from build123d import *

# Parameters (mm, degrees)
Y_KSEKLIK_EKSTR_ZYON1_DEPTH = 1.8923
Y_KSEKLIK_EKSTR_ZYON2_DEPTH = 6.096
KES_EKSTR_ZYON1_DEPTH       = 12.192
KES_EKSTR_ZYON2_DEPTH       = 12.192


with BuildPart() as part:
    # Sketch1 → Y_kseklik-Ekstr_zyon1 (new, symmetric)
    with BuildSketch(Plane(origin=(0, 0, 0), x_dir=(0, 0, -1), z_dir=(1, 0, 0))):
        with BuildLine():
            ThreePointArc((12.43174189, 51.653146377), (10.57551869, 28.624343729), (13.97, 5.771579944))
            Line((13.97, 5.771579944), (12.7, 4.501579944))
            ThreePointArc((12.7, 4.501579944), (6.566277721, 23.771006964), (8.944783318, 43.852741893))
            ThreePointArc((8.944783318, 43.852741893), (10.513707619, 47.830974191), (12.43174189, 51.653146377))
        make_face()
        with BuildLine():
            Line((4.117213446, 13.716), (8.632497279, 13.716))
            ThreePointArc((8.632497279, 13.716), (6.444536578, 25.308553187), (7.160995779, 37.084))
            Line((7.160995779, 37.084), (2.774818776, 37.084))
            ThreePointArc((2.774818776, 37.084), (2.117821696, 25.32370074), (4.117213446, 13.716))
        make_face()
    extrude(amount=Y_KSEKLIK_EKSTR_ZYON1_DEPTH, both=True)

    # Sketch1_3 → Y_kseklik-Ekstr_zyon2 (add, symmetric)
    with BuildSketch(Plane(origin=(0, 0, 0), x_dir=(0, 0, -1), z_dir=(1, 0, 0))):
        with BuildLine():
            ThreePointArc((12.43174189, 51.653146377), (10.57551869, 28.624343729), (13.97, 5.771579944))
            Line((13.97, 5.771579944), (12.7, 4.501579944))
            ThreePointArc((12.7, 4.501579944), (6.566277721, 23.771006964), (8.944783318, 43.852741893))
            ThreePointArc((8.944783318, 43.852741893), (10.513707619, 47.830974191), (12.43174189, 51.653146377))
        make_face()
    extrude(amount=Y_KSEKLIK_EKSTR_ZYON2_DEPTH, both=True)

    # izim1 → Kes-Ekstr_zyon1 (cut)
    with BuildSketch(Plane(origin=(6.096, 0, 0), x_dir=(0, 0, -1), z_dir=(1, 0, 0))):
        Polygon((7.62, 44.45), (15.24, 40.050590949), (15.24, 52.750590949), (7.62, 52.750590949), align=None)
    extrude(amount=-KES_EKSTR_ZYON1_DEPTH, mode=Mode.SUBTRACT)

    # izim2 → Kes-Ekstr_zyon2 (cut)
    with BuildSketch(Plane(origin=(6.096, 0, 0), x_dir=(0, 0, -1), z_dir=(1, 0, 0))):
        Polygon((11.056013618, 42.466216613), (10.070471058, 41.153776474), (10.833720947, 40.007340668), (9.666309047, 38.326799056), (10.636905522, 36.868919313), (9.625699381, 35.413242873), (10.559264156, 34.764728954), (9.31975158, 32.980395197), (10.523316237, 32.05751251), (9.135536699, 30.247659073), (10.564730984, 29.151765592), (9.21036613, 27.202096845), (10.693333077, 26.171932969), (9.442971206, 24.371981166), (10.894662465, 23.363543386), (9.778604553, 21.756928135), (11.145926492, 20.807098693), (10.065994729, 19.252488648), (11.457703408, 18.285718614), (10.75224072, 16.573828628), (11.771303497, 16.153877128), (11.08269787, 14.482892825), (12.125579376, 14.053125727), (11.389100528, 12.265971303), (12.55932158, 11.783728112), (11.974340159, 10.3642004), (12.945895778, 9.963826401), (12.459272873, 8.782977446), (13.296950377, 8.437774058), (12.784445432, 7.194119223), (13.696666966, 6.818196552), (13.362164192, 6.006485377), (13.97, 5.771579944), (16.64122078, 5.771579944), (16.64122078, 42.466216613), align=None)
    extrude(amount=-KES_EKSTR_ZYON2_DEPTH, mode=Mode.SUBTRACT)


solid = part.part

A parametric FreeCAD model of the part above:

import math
import FreeCAD as App
import Part
import Sketcher
from FreeCAD import Vector
Q = App.Units.Quantity


def add_polygon(sketch, points):
    """Adds a closed chain of lines whose ends are joined by coincident constraints."""
    first, n = sketch.GeometryCount, len(points)
    for a, b in zip(points, points[1:] + points[:1]):
        sketch.addGeometry(Part.LineSegment(App.Vector(*a, 0), App.Vector(*b, 0)), False)
    for i in range(n):
        sketch.addConstraint(Sketcher.Constraint("Coincident", first + i, 2, first + (i + 1) % n, 1))

doc = App.newDocument("Part")
body = doc.addObject("PartDesign::Body", "Body")

# Sketch on YZ plane
sketch1 = body.newObject("Sketcher::SketchObject", "Sketch")
sketch1.AttachmentSupport = (doc.getObject("YZ_Plane"), [""])
sketch1.MapMode = "FlatFace"
sketch1.addGeometry(Part.ArcOfCircle(Part.Circle(Vector(32, -112.1, 0), Vector(0, 0, 1), 101.6), math.radians(79), math.radians(105)), False)
sketch1.addGeometry(Part.ArcOfCircle(Part.Circle(Vector(28.3, -54.2, 0), Vector(0, 0, 1), 47.8), math.radians(60.79), math.radians(71.04)), False)
sketch1.addGeometry(Part.ArcOfCircle(Part.Circle(Vector(28.3, -54.2, 0), Vector(0, 0, 1), 47.8), math.radians(71.04), math.radians(79.43)), False)
sketch1.addGeometry(Part.LineSegment(Vector(37.1, -7.2, 0), Vector(37.1, -2.8, 0)), False)
sketch1.addGeometry(Part.ArcOfCircle(Part.Circle(Vector(28.3, -54.2, 0), Vector(0, 0, 1), 52.1), math.radians(80), math.radians(106)), False)
sketch1.addGeometry(Part.LineSegment(Vector(13.7, -4.1, 0), Vector(13.7, -8.6, 0)), False)
sketch1.addGeometry(Part.ArcOfCircle(Part.Circle(Vector(28.3, -54.2, 0), Vector(0, 0, 1), 47.8), math.radians(107.77), math.radians(119.86)), False)
sketch1.addGeometry(Part.LineSegment(Vector(4.5, -12.7, 0), Vector(5.8, -14, 0)), False)
sketch1.addConstraint(Sketcher.Constraint("Coincident", 0, 1, 1, 1))
sketch1.addConstraint(Sketcher.Constraint("Tangent", 1, 2, 2, 1))
sketch1.addConstraint(Sketcher.Constraint("Coincident", 2, 2, 3, 1))
sketch1.addConstraint(Sketcher.Constraint("Coincident", 3, 2, 4, 1))
sketch1.addConstraint(Sketcher.Constraint("Coincident", 4, 2, 5, 1))
sketch1.addConstraint(Sketcher.Constraint("Coincident", 5, 2, 6, 1))
sketch1.addConstraint(Sketcher.Constraint("Coincident", 6, 2, 7, 1))
sketch1.addConstraint(Sketcher.Constraint("Coincident", 7, 2, 0, 2))
sketch1.addConstraint(Sketcher.Constraint("Vertical", 3))
sketch1.addConstraint(Sketcher.Constraint("Vertical", 5))
sketch1.addConstraint(Sketcher.Constraint("Coincident", 4, 3, 1, 3))
sketch1.addConstraint(Sketcher.Constraint("Coincident", 6, 3, 1, 3))
sketch1.addConstraint(Sketcher.Constraint("Equal", 1, 2))
sketch1.addConstraint(Sketcher.Constraint("Equal", 2, 6))
sketch1.addConstraint(Sketcher.Constraint("Radius", 0, Q("4 in")))
sketch1.addConstraint(Sketcher.Constraint("Angle", 7, Q("-45 deg")))
sketch1.addConstraint(Sketcher.Constraint("DistanceY", 6, 2, -1, 1, Q("0.5 in")))
sketch1.addConstraint(Sketcher.Constraint("DistanceX", -1, 1, 2, 2, Q("1.46 in")))
sketch1.addConstraint(Sketcher.Constraint("DistanceX", -1, 1, 4, 2, Q("0.54 in")))
sketch1.addConstraint(Sketcher.Constraint("DistanceY", 7, 2, -1, 1, Q("0.55 in")))
sketch1.addConstraint(Sketcher.Constraint("Radius", 1, Q("47.823437 mm")))
sketch1.addConstraint(Sketcher.Constraint("Radius", 4, Q("52.141438 mm")))
sketch1.addConstraint(Sketcher.Constraint("DistanceX", 0, 3, 0, 1, Q("19.624401 mm")))
sketch1.addConstraint(Sketcher.Constraint("DistanceY", 5, 2, 2, 2, Q("1.471501 mm")))
sketch1.addConstraint(Sketcher.Constraint("DistanceY", 0, 1, -1, 1, Q("12.431742 mm")))
sketch1.addConstraint(Sketcher.Constraint("DistanceX", -1, 1, 1, 2, Q("43.852742 mm")))
pad1 = body.newObject("PartDesign::Pad", "Pad")
pad1.Profile = sketch1
pad1.Length = Q("0.149 in")
pad1.Midplane = True

# Sketch on YZ plane
sketch2 = body.newObject("Sketcher::SketchObject", "Sketch001")
sketch2.AttachmentSupport = (doc.getObject("YZ_Plane"), [""])
sketch2.MapMode = "FlatFace"
sketch2.addGeometry(Part.ArcOfCircle(Part.Circle(Vector(32, -112.1, 0), Vector(0, 0, 1), 101.6), math.radians(79), math.radians(105)), False)
sketch2.addGeometry(Part.ArcOfCircle(Part.Circle(Vector(28.3, -54.2, 0), Vector(0, 0, 1), 47.8), math.radians(60.79), math.radians(71.04)), False)
sketch2.addGeometry(Part.ArcOfCircle(Part.Circle(Vector(28.3, -54.2, 0), Vector(0, 0, 1), 47.8), math.radians(71), math.radians(120)), False)
sketch2.addGeometry(Part.LineSegment(Vector(4.5, -12.7, 0), Vector(5.8, -14, 0)), False)
sketch2.addConstraint(Sketcher.Constraint("Coincident", 0, 1, 1, 1))
sketch2.addConstraint(Sketcher.Constraint("Tangent", 1, 2, 2, 1))
sketch2.addConstraint(Sketcher.Constraint("Coincident", 2, 2, 3, 1))
sketch2.addConstraint(Sketcher.Constraint("Coincident", 3, 2, 0, 2))
sketch2.addConstraint(Sketcher.Constraint("Equal", 1, 2))
sketch2.addConstraint(Sketcher.Constraint("Radius", 0, Q("4 in")))
sketch2.addConstraint(Sketcher.Constraint("Angle", 3, Q("-45 deg")))
sketch2.addConstraint(Sketcher.Constraint("DistanceY", 2, 2, -1, 1, Q("0.5 in")))
sketch2.addConstraint(Sketcher.Constraint("DistanceY", 3, 2, -1, 1, Q("0.55 in")))
sketch2.addConstraint(Sketcher.Constraint("DistanceX", 2, 2, 1, 3, Q("0.9375 in")))
sketch2.addConstraint(Sketcher.Constraint("Radius", 1, Q("47.823437 mm")))
sketch2.addConstraint(Sketcher.Constraint("DistanceX", 0, 3, 0, 1, Q("19.624401 mm")))
sketch2.addConstraint(Sketcher.Constraint("DistanceX", -1, 1, 1, 3, Q("28.31408 mm")))
sketch2.addConstraint(Sketcher.Constraint("DistanceX", -1, 1, 1, 2, Q("43.852742 mm")))
pad2 = body.newObject("PartDesign::Pad", "Pad001")
pad2.Profile = sketch2
pad2.Length = Q("0.48 in")
pad2.Midplane = True

# Sketch on YZ plane
sketch3 = body.newObject("Sketcher::SketchObject", "Sketch002")
sketch3.AttachmentSupport = (doc.getObject("YZ_Plane"), [""])
sketch3.MapMode = "FlatFace"
sketch3.AttachmentOffset = App.Placement(Vector(0, 0, 0.24 * 25.4), App.Rotation())
add_polygon(sketch3, [(44, -8), (40, -15), (53, -15), (53, -8)])  # lines 0-3
sketch3.addConstraint(Sketcher.Constraint("Horizontal", 1))
sketch3.addConstraint(Sketcher.Constraint("Vertical", 2))
sketch3.addConstraint(Sketcher.Constraint("Horizontal", 3))
sketch3.addConstraint(Sketcher.Constraint("DistanceX", 1, 1, 1, 2, Q("0.5 in")))
sketch3.addConstraint(Sketcher.Constraint("DistanceY", 2, 1, 2, 2, Q("0.3 in")))
sketch3.addConstraint(Sketcher.Constraint("Angle", 0, Q("-120 deg")))
sketch3.addConstraint(Sketcher.Constraint("DistanceY", 0, 2, -1, 1, Q("0.6 in")))
sketch3.addConstraint(Sketcher.Constraint("DistanceX", -1, 1, 3, 2, Q("1.75 in")))
pocket1 = body.newObject("PartDesign::Pocket", "Pocket")
pocket1.Profile = sketch3
pocket1.Length = Q("0.48 in")

# Sketch on YZ plane
sketch4 = body.newObject("Sketcher::SketchObject", "Sketch003")
sketch4.AttachmentSupport = (doc.getObject("YZ_Plane"), [""])
sketch4.MapMode = "FlatFace"
sketch4.AttachmentOffset = App.Placement(Vector(0, 0, 0.24 * 25.4), App.Rotation())
add_polygon(sketch4, [(42.5, -11.1), (41.2, -10.1), (40, -10.8), (38.3, -9.7), (36.9, -10.6), (35.4, -9.6), (34.8, -10.6), (33, -9.3), (32.1, -10.5), (30.2, -9.1), (29.2, -10.6), (27.2, -9.2), (26.2, -10.7), (24.4, -9.4), (23.4, -10.9), (21.8, -9.8), (20.8, -11.1), (19.3, -10.1), (18.3, -11.5), (16.6, -10.8), (16.2, -11.8), (14.5, -11.1), (14.1, -12.1), (12.3, -11.4), (11.8, -12.6), (10.4, -12), (10, -12.9), (8.8, -12.5), (8.4, -13.3), (7.2, -12.8), (6.8, -13.7), (6, -13.4), (5.8, -14), (5.8, -16.6), (42.5, -16.6)])  # lines 0-34
sketch4.addConstraint(Sketcher.Constraint("Vertical", 32))
sketch4.addConstraint(Sketcher.Constraint("Horizontal", 33))
sketch4.addConstraint(Sketcher.Constraint("Vertical", 34))
sketch4.addConstraint(Sketcher.Constraint("Parallel", 1, 3))
sketch4.addConstraint(Sketcher.Constraint("Parallel", 2, 4))
sketch4.addConstraint(Sketcher.Constraint("Perpendicular", 4, 5))
sketch4.addConstraint(Sketcher.Constraint("Perpendicular", 5, 6))
sketch4.addConstraint(Sketcher.Constraint("Perpendicular", 7, 8))
sketch4.addConstraint(Sketcher.Constraint("Perpendicular", 8, 9))
sketch4.addConstraint(Sketcher.Constraint("Parallel", 6, 10))
sketch4.addConstraint(Sketcher.Constraint("Perpendicular", 10, 11))
sketch4.addConstraint(Sketcher.Constraint("Perpendicular", 11, 12))
sketch4.addConstraint(Sketcher.Constraint("Perpendicular", 12, 13))
sketch4.addConstraint(Sketcher.Constraint("Perpendicular", 13, 14))
sketch4.addConstraint(Sketcher.Constraint("Perpendicular", 14, 15))
sketch4.addConstraint(Sketcher.Constraint("Perpendicular", 15, 16))
sketch4.addConstraint(Sketcher.Constraint("Perpendicular", 16, 17))
sketch4.addConstraint(Sketcher.Constraint("Perpendicular", 18, 19))
sketch4.addConstraint(Sketcher.Constraint("Perpendicular", 19, 20))
sketch4.addConstraint(Sketcher.Constraint("Perpendicular", 20, 21))
sketch4.addConstraint(Sketcher.Constraint("Perpendicular", 21, 22))
sketch4.addConstraint(Sketcher.Constraint("Perpendicular", 22, 23))
sketch4.addConstraint(Sketcher.Constraint("Perpendicular", 23, 24))
sketch4.addConstraint(Sketcher.Constraint("Perpendicular", 24, 25))
sketch4.addConstraint(Sketcher.Constraint("Perpendicular", 25, 26))
sketch4.addConstraint(Sketcher.Constraint("Perpendicular", 26, 27))
sketch4.addConstraint(Sketcher.Constraint("Perpendicular", 27, 28))
sketch4.addConstraint(Sketcher.Constraint("Perpendicular", 28, 29))
sketch4.addConstraint(Sketcher.Constraint("Perpendicular", 29, 30))
sketch4.addConstraint(Sketcher.Constraint("DistanceY", 31, 2, -1, 1, Q("0.55 in")))
sketch4.addConstraint(Sketcher.Constraint("DistanceX", 16, 2, 14, 2, Q("0.0986 in")))
sketch4.addConstraint(Sketcher.Constraint("DistanceX", 29, 2, 28, 2, Q("0.0148001 in")))
sketch4.addConstraint(Sketcher.Constraint("Distance", 16, Q("1.892899 mm")))
sketch4.addConstraint(Sketcher.Constraint("Distance", 19, Q("1.102202 mm")))
sketch4.addConstraint(Sketcher.Constraint("DistanceY", 32, 2, 32, 1, Q("2.671221 mm")))
sketch4.addConstraint(Sketcher.Constraint("DistanceX", -1, 1, 2, 2, Q("38.326799 mm")))
sketch4.addConstraint(Sketcher.Constraint("DistanceY", 4, 2, -1, 1, Q("9.625699 mm")))
sketch4.addConstraint(Sketcher.Constraint("DistanceX", -1, 1, 15, 2, Q("20.807099 mm")))
sketch4.addConstraint(Sketcher.Constraint("DistanceY", 22, 2, -1, 1, Q("11.389101 mm")))
sketch4.addConstraint(Sketcher.Constraint("DistanceX", -1, 1, 24, 2, Q("10.3642 mm")))
sketch4.addConstraint(Sketcher.Constraint("DistanceX", 10, 2, 6, 2, Q("5.778298 mm")))
sketch4.addConstraint(Sketcher.Constraint("DistanceY", 5, 2, 10, 2, Q("1.348898 mm")))
sketch4.addConstraint(Sketcher.Constraint("DistanceX", 15, 2, 10, 2, Q("6.394998 mm")))
sketch4.addConstraint(Sketcher.Constraint("DistanceY", 17, 2, 14, 2, Q("1.679099 mm")))
sketch4.addConstraint(Sketcher.Constraint("DistanceX", 18, 2, 14, 2, Q("5.1831 mm")))
sketch4.addConstraint(Sketcher.Constraint("DistanceY", 19, 2, 17, 2, Q("0.3136 mm")))
sketch4.addConstraint(Sketcher.Constraint("DistanceX", 23, 2, 18, 2, Q("4.790101 mm")))
sketch4.addConstraint(Sketcher.Constraint("DistanceX", 25, 2, 23, 2, Q("1.819902 mm")))
sketch4.addConstraint(Sketcher.Constraint("DistanceX", 25, 2, 21, 2, Q("4.089299 mm")))
sketch4.addConstraint(Sketcher.Constraint("DistanceY", 33, 2, 1, 2, Q("5.8075 mm")))
sketch4.addConstraint(Sketcher.Constraint("Distance", 3, Q("1.75142 mm")))
sketch4.addConstraint(Sketcher.Constraint("Distance", 5, Q("1.136712 mm")))
sketch4.addConstraint(Sketcher.Constraint("Distance", 6, Q("2.172611 mm")))
sketch4.addConstraint(Sketcher.Constraint("Distance", 8, Q("2.28068 mm")))
sketch4.addConstraint(Sketcher.Constraint("Distance", 14, Q("1.95622 mm")))
sketch4.addConstraint(Sketcher.Constraint("Distance", 17, Q("1.694549 mm")))
sketch4.addConstraint(Sketcher.Constraint("Distance", 20, Q("1.807309 mm")))
sketch4.addConstraint(Sketcher.Constraint("Distance", 23, Q("1.265692 mm")))
sketch4.addConstraint(Sketcher.Constraint("Distance", 27, Q("0.906018 mm")))
sketch4.addConstraint(Sketcher.Constraint("DistanceX", 33, 1, 33, 2, Q("36.694637 mm")))
sketch4.addConstraint(Sketcher.Constraint("DistanceY", 34, 1, 34, 2, Q("5.585207 mm")))
sketch4.addConstraint(Sketcher.Constraint("DistanceY", 0, 2, -1, 1, Q("10.070471 mm")))
sketch4.addConstraint(Sketcher.Constraint("DistanceX", -1, 1, 1, 2, Q("40.007341 mm")))
sketch4.addConstraint(Sketcher.Constraint("DistanceX", -1, 1, 8, 2, Q("30.247659 mm")))
sketch4.addConstraint(Sketcher.Constraint("DistanceY", 9, 2, -1, 1, Q("10.564731 mm")))
sketch4.addConstraint(Sketcher.Constraint("DistanceX", -1, 1, 12, 2, Q("24.371981 mm")))
sketch4.addConstraint(Sketcher.Constraint("DistanceY", 27, 2, -1, 1, Q("13.29695 mm")))
sketch4.addConstraint(Sketcher.Constraint("DistanceX", -1, 1, 28, 2, Q("7.194119 mm")))
sketch4.addConstraint(Sketcher.Constraint("DistanceX", -1, 1, 31, 2, Q("5.77158 mm")))
sketch4.addConstraint(Sketcher.Constraint("DistanceX", 30, 2, 29, 2, Q("0.811711 mm")))
pocket2 = body.newObject("PartDesign::Pocket", "Pocket001")
pocket2.Profile = sketch4
pocket2.Length = Q("0.48 in")

doc.recompute()
